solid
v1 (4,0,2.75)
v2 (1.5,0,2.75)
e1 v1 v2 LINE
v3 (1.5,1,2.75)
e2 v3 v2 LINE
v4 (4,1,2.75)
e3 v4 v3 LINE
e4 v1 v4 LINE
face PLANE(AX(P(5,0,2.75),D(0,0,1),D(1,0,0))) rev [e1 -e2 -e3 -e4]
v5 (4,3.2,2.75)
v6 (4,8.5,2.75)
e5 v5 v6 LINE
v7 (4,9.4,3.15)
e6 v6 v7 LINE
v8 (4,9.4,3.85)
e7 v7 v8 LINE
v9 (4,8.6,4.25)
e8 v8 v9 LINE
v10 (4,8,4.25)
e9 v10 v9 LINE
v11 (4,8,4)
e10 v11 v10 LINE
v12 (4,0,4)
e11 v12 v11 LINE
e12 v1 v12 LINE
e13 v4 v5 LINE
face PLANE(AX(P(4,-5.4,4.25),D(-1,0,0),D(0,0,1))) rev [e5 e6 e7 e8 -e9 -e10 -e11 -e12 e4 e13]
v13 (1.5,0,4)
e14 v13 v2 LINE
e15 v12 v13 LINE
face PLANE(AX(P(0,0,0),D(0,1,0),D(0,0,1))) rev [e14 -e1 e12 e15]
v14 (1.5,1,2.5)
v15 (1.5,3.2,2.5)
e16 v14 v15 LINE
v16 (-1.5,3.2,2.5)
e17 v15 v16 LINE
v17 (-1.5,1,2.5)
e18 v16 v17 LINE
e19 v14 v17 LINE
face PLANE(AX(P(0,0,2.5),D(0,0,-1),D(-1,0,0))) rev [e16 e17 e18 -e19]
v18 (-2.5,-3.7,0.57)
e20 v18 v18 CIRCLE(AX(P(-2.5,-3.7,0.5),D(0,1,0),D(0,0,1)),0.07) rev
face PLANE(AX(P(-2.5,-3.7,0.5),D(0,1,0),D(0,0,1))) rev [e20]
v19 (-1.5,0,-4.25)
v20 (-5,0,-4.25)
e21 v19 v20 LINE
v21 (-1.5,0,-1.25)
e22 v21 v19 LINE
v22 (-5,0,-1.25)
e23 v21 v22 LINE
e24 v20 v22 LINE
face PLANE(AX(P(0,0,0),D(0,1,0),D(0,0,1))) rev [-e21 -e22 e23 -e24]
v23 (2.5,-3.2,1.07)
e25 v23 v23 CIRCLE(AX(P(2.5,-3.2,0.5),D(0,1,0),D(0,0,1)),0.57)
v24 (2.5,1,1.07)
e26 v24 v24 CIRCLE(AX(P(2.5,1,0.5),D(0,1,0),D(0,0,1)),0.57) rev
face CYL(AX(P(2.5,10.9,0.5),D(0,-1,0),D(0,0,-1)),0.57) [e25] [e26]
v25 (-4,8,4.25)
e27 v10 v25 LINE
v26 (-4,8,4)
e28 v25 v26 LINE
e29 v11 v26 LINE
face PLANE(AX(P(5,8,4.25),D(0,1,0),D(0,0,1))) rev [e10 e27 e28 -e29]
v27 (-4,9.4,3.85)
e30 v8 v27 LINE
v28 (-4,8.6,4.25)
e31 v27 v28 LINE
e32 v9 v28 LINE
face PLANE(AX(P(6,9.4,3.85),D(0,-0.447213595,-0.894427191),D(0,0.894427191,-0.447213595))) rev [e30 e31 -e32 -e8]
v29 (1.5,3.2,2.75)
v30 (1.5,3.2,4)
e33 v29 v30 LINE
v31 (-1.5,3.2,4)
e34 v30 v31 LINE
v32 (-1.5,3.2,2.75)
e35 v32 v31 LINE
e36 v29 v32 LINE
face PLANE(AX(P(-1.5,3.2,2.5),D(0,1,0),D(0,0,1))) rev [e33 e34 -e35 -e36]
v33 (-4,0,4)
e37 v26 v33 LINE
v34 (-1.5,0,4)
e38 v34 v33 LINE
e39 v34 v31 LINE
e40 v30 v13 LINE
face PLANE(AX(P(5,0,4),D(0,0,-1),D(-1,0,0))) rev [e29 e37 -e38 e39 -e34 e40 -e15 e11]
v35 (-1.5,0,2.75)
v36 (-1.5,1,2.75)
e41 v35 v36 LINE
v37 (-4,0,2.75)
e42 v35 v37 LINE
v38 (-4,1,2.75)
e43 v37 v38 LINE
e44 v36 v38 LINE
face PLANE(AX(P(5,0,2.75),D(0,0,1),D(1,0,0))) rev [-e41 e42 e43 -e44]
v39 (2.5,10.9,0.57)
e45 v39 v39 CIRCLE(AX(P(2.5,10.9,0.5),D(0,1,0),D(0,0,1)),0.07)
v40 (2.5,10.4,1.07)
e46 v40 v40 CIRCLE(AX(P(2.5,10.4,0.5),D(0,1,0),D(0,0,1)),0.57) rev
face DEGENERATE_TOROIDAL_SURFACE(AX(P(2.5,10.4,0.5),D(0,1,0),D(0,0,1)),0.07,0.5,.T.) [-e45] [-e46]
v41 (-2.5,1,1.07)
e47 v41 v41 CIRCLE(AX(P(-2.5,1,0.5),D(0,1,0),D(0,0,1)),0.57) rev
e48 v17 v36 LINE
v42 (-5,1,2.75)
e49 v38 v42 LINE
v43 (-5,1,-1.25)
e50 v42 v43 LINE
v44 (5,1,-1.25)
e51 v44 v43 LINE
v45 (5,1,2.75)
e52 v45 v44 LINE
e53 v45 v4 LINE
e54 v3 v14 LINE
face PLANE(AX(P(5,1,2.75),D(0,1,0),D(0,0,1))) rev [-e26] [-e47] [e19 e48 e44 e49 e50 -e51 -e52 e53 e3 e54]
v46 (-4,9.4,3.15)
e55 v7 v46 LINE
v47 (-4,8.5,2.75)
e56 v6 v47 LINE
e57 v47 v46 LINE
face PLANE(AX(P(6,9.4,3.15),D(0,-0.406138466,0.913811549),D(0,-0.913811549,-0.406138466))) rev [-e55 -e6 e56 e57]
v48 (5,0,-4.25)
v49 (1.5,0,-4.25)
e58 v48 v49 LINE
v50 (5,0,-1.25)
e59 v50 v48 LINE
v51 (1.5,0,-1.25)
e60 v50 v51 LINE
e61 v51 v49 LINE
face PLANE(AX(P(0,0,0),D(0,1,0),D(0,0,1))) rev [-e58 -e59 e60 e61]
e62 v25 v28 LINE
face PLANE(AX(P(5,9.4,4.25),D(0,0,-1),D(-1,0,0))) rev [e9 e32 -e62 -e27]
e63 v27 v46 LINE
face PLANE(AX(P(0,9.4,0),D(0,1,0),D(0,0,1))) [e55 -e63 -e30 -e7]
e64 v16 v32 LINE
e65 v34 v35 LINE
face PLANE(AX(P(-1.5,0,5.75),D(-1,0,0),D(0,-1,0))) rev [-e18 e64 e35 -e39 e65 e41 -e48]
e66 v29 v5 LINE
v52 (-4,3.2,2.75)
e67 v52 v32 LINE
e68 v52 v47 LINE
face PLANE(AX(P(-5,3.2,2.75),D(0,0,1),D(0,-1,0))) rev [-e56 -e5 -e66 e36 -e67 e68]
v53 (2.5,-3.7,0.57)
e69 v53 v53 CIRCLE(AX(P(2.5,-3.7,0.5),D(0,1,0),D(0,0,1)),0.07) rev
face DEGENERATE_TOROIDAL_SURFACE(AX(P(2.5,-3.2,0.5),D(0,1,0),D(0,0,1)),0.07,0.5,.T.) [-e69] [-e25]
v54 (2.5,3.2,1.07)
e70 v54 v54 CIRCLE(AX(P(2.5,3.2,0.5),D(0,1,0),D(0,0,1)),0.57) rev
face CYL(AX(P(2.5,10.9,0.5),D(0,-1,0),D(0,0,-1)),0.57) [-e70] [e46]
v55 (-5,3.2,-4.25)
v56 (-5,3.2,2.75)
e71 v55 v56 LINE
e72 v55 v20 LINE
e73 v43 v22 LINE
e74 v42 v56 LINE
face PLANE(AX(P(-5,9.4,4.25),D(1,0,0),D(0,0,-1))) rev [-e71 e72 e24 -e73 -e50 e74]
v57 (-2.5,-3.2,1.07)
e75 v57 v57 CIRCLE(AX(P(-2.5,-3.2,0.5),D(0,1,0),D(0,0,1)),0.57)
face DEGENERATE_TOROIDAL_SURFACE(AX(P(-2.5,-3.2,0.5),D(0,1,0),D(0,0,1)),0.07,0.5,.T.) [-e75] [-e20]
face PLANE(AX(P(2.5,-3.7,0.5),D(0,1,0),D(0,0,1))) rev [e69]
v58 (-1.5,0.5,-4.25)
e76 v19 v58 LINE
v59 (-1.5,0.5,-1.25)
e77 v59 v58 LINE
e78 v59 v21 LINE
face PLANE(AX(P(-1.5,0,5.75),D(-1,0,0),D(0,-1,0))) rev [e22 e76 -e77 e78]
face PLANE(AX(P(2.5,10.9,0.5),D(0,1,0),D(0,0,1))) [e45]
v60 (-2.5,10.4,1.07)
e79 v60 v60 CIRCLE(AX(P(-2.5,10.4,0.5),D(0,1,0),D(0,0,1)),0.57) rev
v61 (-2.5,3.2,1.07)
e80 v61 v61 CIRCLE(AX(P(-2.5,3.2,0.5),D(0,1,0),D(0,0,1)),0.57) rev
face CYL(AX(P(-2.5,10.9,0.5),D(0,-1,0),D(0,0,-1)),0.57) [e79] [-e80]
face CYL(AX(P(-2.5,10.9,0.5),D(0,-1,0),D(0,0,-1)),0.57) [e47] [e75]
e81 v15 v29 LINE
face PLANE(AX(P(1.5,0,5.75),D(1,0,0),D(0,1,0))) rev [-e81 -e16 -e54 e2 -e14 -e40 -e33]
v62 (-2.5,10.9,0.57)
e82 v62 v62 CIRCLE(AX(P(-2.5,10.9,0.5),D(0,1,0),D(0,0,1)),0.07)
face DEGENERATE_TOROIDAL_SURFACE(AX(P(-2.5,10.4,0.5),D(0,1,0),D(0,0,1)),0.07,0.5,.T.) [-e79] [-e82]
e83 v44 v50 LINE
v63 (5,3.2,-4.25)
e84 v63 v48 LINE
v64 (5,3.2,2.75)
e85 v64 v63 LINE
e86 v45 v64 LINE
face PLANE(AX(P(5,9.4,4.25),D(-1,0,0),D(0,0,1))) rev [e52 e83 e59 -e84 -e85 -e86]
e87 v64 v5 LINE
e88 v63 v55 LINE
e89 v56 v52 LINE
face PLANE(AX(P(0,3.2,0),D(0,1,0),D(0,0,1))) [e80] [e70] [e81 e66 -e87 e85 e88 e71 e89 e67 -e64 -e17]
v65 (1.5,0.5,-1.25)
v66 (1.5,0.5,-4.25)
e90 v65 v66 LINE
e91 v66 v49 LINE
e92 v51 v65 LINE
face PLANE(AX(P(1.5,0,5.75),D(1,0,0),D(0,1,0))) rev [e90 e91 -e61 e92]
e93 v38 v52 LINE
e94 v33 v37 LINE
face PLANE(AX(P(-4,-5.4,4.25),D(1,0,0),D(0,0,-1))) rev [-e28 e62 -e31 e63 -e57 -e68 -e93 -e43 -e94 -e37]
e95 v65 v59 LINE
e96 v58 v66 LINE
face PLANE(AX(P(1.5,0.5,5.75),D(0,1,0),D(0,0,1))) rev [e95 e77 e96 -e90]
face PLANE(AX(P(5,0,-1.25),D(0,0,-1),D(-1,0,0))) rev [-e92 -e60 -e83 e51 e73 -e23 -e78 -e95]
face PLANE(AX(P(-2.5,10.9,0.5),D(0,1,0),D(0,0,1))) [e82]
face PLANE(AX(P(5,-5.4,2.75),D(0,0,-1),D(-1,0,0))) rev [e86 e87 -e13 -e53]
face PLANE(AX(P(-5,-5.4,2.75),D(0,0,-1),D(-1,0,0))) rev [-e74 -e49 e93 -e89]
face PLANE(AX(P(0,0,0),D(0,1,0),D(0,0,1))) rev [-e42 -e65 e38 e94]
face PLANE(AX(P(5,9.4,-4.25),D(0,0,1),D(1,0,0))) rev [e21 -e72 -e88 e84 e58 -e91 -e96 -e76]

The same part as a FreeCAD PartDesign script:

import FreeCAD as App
import Part
import Sketcher
from FreeCAD import Vector
Q = App.Units.Quantity


def edges_at(feature, points):
    """Names of the edges that pass closest to the given points."""
    edges = feature.Shape.Edges
    near = lambda p: min(range(len(edges)), key=lambda i: edges[i].distToShape(Part.Vertex(*p))[0])
    return sorted({f"Edge{near(p) + 1}" for p in points})

doc = App.newDocument("Part")
body = doc.addObject("PartDesign::Body", "Body")

# Sketch on XZ plane
sketch1 = body.newObject("Sketcher::SketchObject", "Sketch")
sketch1.AttachmentSupport = (doc.getObject("XZ_Plane"), [""])
sketch1.MapMode = "FlatFace"
sketch1.addGeometry([
    Part.LineSegment(Vector(-5, -4.25, 0), Vector(-5, 4.25, 0)),
    Part.LineSegment(Vector(-5, 4.25, 0), Vector(5, 4.25, 0)),
    Part.LineSegment(Vector(5, 4.25, 0), Vector(5, -4.25, 0)),
    Part.LineSegment(Vector(5, -4.25, 0), Vector(-5, -4.25, 0)),
], False)
sketch1.addConstraint([
    Sketcher.Constraint("Coincident", 0, 2, 1, 1),
    Sketcher.Constraint("Coincident", 1, 2, 2, 1),
    Sketcher.Constraint("Coincident", 2, 2, 3, 1),
    Sketcher.Constraint("Coincident", 3, 2, 0, 1),
    Sketcher.Constraint("Vertical", 0),
    Sketcher.Constraint("Horizontal", 1),
    Sketcher.Constraint("Vertical", 2),
    Sketcher.Constraint("Horizontal", 3),
    Sketcher.Constraint("Symmetric", 0, 2, 2, 2, -1, 1),
    Sketcher.Constraint("DistanceX", 1, 1, 1, 2, Q("10 mm")),
    Sketcher.Constraint("DistanceY", 0, 1, 0, 2, Q("8.5 mm")),
])
pad1 = body.newObject("PartDesign::Pad", "Pad")
pad1.Profile = sketch1
pad1.Length = 9.4
pad1.Reversed = True

# Sketch on XZ plane
sketch2 = body.newObject("Sketcher::SketchObject", "Sketch001")
sketch2.AttachmentSupport = (doc.getObject("XZ_Plane"), [""])
sketch2.MapMode = "FlatFace"
sketch2.AttachmentOffset = App.Placement(Vector(0, 0, -9.4), App.Rotation())
sketch2.addGeometry([
    Part.LineSegment(Vector(-5, -4.25, 0), Vector(-5, 2.75, 0)),
    Part.LineSegment(Vector(-5, 2.75, 0), Vector(5, 2.75, 0)),
    Part.LineSegment(Vector(5, 2.75, 0), Vector(5, -4.25, 0)),
    Part.LineSegment(Vector(5, -4.25, 0), Vector(-5, -4.25, 0)),
], False)
sketch2.addConstraint([
    Sketcher.Constraint("Coincident", 0, 2, 1, 1),
    Sketcher.Constraint("Coincident", 1, 2, 2, 1),
    Sketcher.Constraint("Coincident", 2, 2, 3, 1),
    Sketcher.Constraint("Coincident", 3, 2, 0, 1),
    Sketcher.Constraint("Vertical", 0),
    Sketcher.Constraint("Horizontal", 1),
    Sketcher.Constraint("Vertical", 2),
    Sketcher.Constraint("Horizontal", 3),
    Sketcher.Constraint("DistanceX", 1, 1, 1, 2, Q("10 mm")),
    Sketcher.Constraint("DistanceY", 0, 1, 0, 2, Q("7 mm")),
    Sketcher.Constraint("DistanceX", 0, 2, -1, 1, Q("5 mm")),
    Sketcher.Constraint("DistanceY", -1, 1, 0, 2, Q("2.75 mm")),
])
pocket1 = body.newObject("PartDesign::Pocket", "Pocket")
pocket1.Profile = sketch2
pocket1.Length = 6.2
pocket1.Reversed = True

# Sketch on YZ plane
sketch3 = body.newObject("Sketcher::SketchObject", "Sketch002")
sketch3.AttachmentSupport = (doc.getObject("YZ_Plane"), [""])
sketch3.MapMode = "FlatFace"
sketch3.AttachmentOffset = App.Placement(Vector(0, 0, -5), App.Rotation())
sketch3.addGeometry([
    Part.LineSegment(Vector(8, 4, 0), Vector(0, 4, 0)),
    Part.LineSegment(Vector(0, 4, 0), Vector(0, 4.25, 0)),
    Part.LineSegment(Vector(0, 4.25, 0), Vector(8, 4.25, 0)),
    Part.LineSegment(Vector(8, 4.25, 0), Vector(8, 4, 0)),
], False)
sketch3.addConstraint([
    Sketcher.Constraint("Coincident", 0, 2, 1, 1),
    Sketcher.Constraint("Coincident", 1, 2, 2, 1),
    Sketcher.Constraint("Coincident", 2, 2, 3, 1),
    Sketcher.Constraint("Coincident", 3, 2, 0, 1),
    Sketcher.Constraint("Horizontal", 0),
    Sketcher.Constraint("Vertical", 1),
    Sketcher.Constraint("Horizontal", 2),
    Sketcher.Constraint("Vertical", 3),
    Sketcher.Constraint("PointOnObject", 0, 2, -2),
    Sketcher.Constraint("DistanceX", 0, 2, 0, 1, Q("8 mm")),
    Sketcher.Constraint("DistanceY", -1, 1, 0, 2, Q("4 mm")),
    Sketcher.Constraint("DistanceY", 1, 1, 1, 2, Q("0.25 mm")),
])
pocket2 = body.newObject("PartDesign::Pocket", "Pocket001")
pocket2.Profile = sketch3
pocket2.Length = 10
pocket2.Reversed = True

# Sketch on XY plane
sketch4 = body.newObject("Sketcher::SketchObject", "Sketch003")
sketch4.AttachmentSupport = (doc.getObject("XY_Plane"), [""])
sketch4.MapMode = "FlatFace"
sketch4.AttachmentOffset = App.Placement(Vector(0, 0, -4.25), App.Rotation())
sketch4.addGeometry([
    Part.LineSegment(Vector(1.5, 0.5, 0), Vector(1.5, 0, 0)),
    Part.LineSegment(Vector(1.5, 0, 0), Vector(-1.5, 0, 0)),
    Part.LineSegment(Vector(-1.5, 0, 0), Vector(-1.5, 0.5, 0)),
    Part.LineSegment(Vector(-1.5, 0.5, 0), Vector(1.5, 0.5, 0)),
], False)
sketch4.addConstraint([
    Sketcher.Constraint("Coincident", 0, 2, 1, 1),
    Sketcher.Constraint("Coincident", 1, 2, 2, 1),
    Sketcher.Constraint("Coincident", 2, 2, 3, 1),
    Sketcher.Constraint("Coincident", 3, 2, 0, 1),
    Sketcher.Constraint("Vertical", 0),
    Sketcher.Constraint("Horizontal", 1),
    Sketcher.Constraint("Vertical", 2),
    Sketcher.Constraint("Horizontal", 3),
    Sketcher.Constraint("Symmetric", 0, 2, 1, 2, -1, 1),
    Sketcher.Constraint("DistanceX", 1, 2, 1, 1, Q("3 mm")),
    Sketcher.Constraint("DistanceY", 0, 2, 0, 1, Q("0.5 mm")),
])
pocket3 = body.newObject("PartDesign::Pocket", "Pocket002")
pocket3.Profile = sketch4
pocket3.Length = 10
pocket3.Reversed = True

# Sketch on YZ plane
sketch5 = body.newObject("Sketcher::SketchObject", "Sketch004")
sketch5.AttachmentSupport = (doc.getObject("YZ_Plane"), [""])
sketch5.MapMode = "FlatFace"
sketch5.AttachmentOffset = App.Placement(Vector(0, 0, -5), App.Rotation())
sketch5.addGeometry([
    Part.LineSegment(Vector(1, -1.25, 0), Vector(0, -1.25, 0)),
    Part.LineSegment(Vector(0, -1.25, 0), Vector(0, 2.75, 0)),
    Part.LineSegment(Vector(0, 2.75, 0), Vector(1, 2.75, 0)),
    Part.LineSegment(Vector(1, 2.75, 0), Vector(1, -1.25, 0)),
], False)
sketch5.addConstraint([
    Sketcher.Constraint("Coincident", 0, 2, 1, 1),
    Sketcher.Constraint("Coincident", 1, 2, 2, 1),
    Sketcher.Constraint("Coincident", 2, 2, 3, 1),
    Sketcher.Constraint("Coincident", 3, 2, 0, 1),
    Sketcher.Constraint("Horizontal", 0),
    Sketcher.Constraint("Vertical", 1),
    Sketcher.Constraint("Horizontal", 2),
    Sketcher.Constraint("Vertical", 3),
    Sketcher.Constraint("PointOnObject", 0, 2, -2),
    Sketcher.Constraint("DistanceX", 0, 2, 0, 1, Q("1 mm")),
    Sketcher.Constraint("DistanceY", 1, 1, 1, 2, Q("4 mm")),
    Sketcher.Constraint("DistanceY", 0, 2, -1, 1, Q("1.25 mm")),
])
pocket4 = body.newObject("PartDesign::Pocket", "Pocket003")
pocket4.Profile = sketch5
pocket4.Length = 10
pocket4.Reversed = True

# Sketch on XZ plane
sketch6 = body.newObject("Sketcher::SketchObject", "Sketch005")
sketch6.AttachmentSupport = (doc.getObject("XZ_Plane"), [""])
sketch6.MapMode = "FlatFace"
sketch6.AttachmentOffset = App.Placement(Vector(0, 0, -3.6), App.Rotation())
sketch6.addGeometry([
    Part.Circle(Vector(-2.5, 0.5, 0), Vector(0, 0, 1), 0.57),
    Part.Circle(Vector(2.5, 0.5, 0), Vector(0, 0, 1), 0.57),
], False)
sketch6.addConstraint([
    Sketcher.Constraint("Equal", 0, 1),
    Sketcher.Constraint("Symmetric", 0, 3, 1, 3, -2),
    Sketcher.Constraint("Diameter", 0, Q("1.14 mm")),
    Sketcher.Constraint("DistanceX", 0, 3, 1, 3, Q("5 mm")),
    Sketcher.Constraint("DistanceY", -1, 1, 0, 3, Q("0.5 mm")),
])
pad2 = body.newObject("PartDesign::Pad", "Pad001")
pad2.Profile = sketch6
pad2.Length = 14.6
pad2.Midplane = True
doc.recompute()

fillet = body.newObject("PartDesign::Fillet", "Fillet")
fillet.Base = (pad2, edges_at(pad2, [
    (2.5, -3.7, -0.07),
    (2.5, 10.9, -0.07),
    (-2.5, -3.7, -0.07),
    (-2.5, 10.9, -0.07),
]))
fillet.Radius = 0.5

# Sketch on XZ plane
sketch7 = body.newObject("Sketcher::SketchObject", "Sketch006")
sketch7.AttachmentSupport = (doc.getObject("XZ_Plane"), [""])
sketch7.MapMode = "FlatFace"
sketch7.AttachmentOffset = App.Placement(Vector(0, 0, -9.4), App.Rotation())
sketch7.addGeometry([
    Part.LineSegment(Vector(-5, 2.75, 0), Vector(-5, 4.25, 0)),  # 0
    Part.LineSegment(Vector(-5, 4.25, 0), Vector(-4, 4.25, 0)),  # 1
    Part.LineSegment(Vector(-4, 4.25, 0), Vector(-4, 2.75, 0)),  # 2
    Part.LineSegment(Vector(-4, 2.75, 0), Vector(-5, 2.75, 0)),  # 3
    Part.LineSegment(Vector(4, 2.75, 0), Vector(4, 4.25, 0)),  # 4
    Part.LineSegment(Vector(4, 4.25, 0), Vector(5, 4.25, 0)),  # 5
    Part.LineSegment(Vector(5, 4.25, 0), Vector(5, 2.75, 0)),  # 6
    Part.LineSegment(Vector(5, 2.75, 0), Vector(4, 2.75, 0)),  # 7
], False)
sketch7.addConstraint([
    Sketcher.Constraint("Coincident", 0, 2, 1, 1),
    Sketcher.Constraint("Coincident", 1, 2, 2, 1),
    Sketcher.Constraint("Coincident", 2, 2, 3, 1),
    Sketcher.Constraint("Coincident", 3, 2, 0, 1),
    Sketcher.Constraint("Coincident", 4, 2, 5, 1),
    Sketcher.Constraint("Coincident", 5, 2, 6, 1),
    Sketcher.Constraint("Coincident", 6, 2, 7, 1),
    Sketcher.Constraint("Coincident", 7, 2, 4, 1),
    Sketcher.Constraint("Vertical", 0),
    Sketcher.Constraint("Horizontal", 1),
    Sketcher.Constraint("Vertical", 2),
    Sketcher.Constraint("Horizontal", 3),
    Sketcher.Constraint("Vertical", 4),
    Sketcher.Constraint("Horizontal", 5),
    Sketcher.Constraint("Vertical", 6),
    Sketcher.Constraint("Horizontal", 7),
    Sketcher.Constraint("Symmetric", 1, 2, 4, 2, -2),
    Sketcher.Constraint("Symmetric", 3, 2, 6, 2, -2),
    Sketcher.Constraint("DistanceX", 1, 1, 1, 2, Q("1 mm")),
    Sketcher.Constraint("DistanceY", 0, 1, 0, 2, Q("1.5 mm")),
    Sketcher.Constraint("DistanceX", 0, 2, -1, 1, Q("5 mm")),
    Sketcher.Constraint("DistanceY", -1, 1, 0, 2, Q("4.25 mm")),
])
pocket5 = body.newObject("PartDesign::Pocket", "Pocket004")
pocket5.Profile = sketch7
pocket5.Length = 14.8
pocket5.Reversed = True

# Sketch on XY plane
sketch8 = body.newObject("Sketcher::SketchObject", "Sketch007")
sketch8.AttachmentSupport = (doc.getObject("XY_Plane"), [""])
sketch8.MapMode = "FlatFace"
sketch8.AttachmentOffset = App.Placement(Vector(0, 0, 4), App.Rotation())
sketch8.addGeometry([
    Part.LineSegment(Vector(-1.5, 3.2, 0), Vector(-1.5, 0, 0)),
    Part.LineSegment(Vector(-1.5, 0, 0), Vector(1.5, 0, 0)),
    Part.LineSegment(Vector(1.5, 0, 0), Vector(1.5, 3.2, 0)),
    Part.LineSegment(Vector(1.5, 3.2, 0), Vector(-1.5, 3.2, 0)),
], False)
sketch8.addConstraint([
    Sketcher.Constraint("Coincident", 0, 2, 1, 1),
    Sketcher.Constraint("Coincident", 1, 2, 2, 1),
    Sketcher.Constraint("Coincident", 2, 2, 3, 1),
    Sketcher.Constraint("Coincident", 3, 2, 0, 1),
    Sketcher.Constraint("Vertical", 0),
    Sketcher.Constraint("Horizontal", 1),
    Sketcher.Constraint("Vertical", 2),
    Sketcher.Constraint("Horizontal", 3),
    Sketcher.Constraint("Symmetric", 0, 2, 1, 2, -1, 1),
    Sketcher.Constraint("DistanceX", 1, 1, 1, 2, Q("3 mm")),
    Sketcher.Constraint("DistanceY", 0, 2, 0, 1, Q("3.2 mm")),
])
pocket6 = body.newObject("PartDesign::Pocket", "Pocket005")
pocket6.Profile = sketch8
pocket6.Length = 1.5

# Sketch on YZ plane
sketch9 = body.newObject("Sketcher::SketchObject", "Sketch008")
sketch9.AttachmentSupport = (doc.getObject("YZ_Plane"), [""])
sketch9.MapMode = "FlatFace"
sketch9.AttachmentOffset = App.Placement(Vector(0, 0, -4), App.Rotation())
sketch9.addGeometry([
    Part.LineSegment(Vector(8.6, 4.25, 0), Vector(9.4, 4.25, 0)),  # 0
    Part.LineSegment(Vector(9.4, 4.25, 0), Vector(9.4, 3.85, 0)),  # 1
    Part.LineSegment(Vector(9.4, 3.85, 0), Vector(8.6, 4.25, 0)),  # 2
    Part.LineSegment(Vector(9.4, 2.75, 0), Vector(8.5, 2.75, 0)),  # 3
    Part.LineSegment(Vector(8.5, 2.75, 0), Vector(9.4, 3.15, 0)),  # 4
    Part.LineSegment(Vector(9.4, 3.15, 0), Vector(9.4, 2.75, 0)),  # 5
], False)
sketch9.addConstraint([
    Sketcher.Constraint("Coincident", 0, 2, 1, 1),
    Sketcher.Constraint("Coincident", 1, 2, 2, 1),
    Sketcher.Constraint("Coincident", 2, 2, 0, 1),
    Sketcher.Constraint("Coincident", 3, 2, 4, 1),
    Sketcher.Constraint("Coincident", 4, 2, 5, 1),
    Sketcher.Constraint("Coincident", 5, 2, 3, 1),
    Sketcher.Constraint("Horizontal", 0),
    Sketcher.Constraint("Vertical", 1),
    Sketcher.Constraint("Horizontal", 3),
    Sketcher.Constraint("Vertical", 5),
    Sketcher.Constraint("Vertical", 1, 2, 4, 2),
    Sketcher.Constraint("Equal", 1, 5),
    Sketcher.Constraint("DistanceX", 0, 1, 0, 2, Q("0.8 mm")),
    Sketcher.Constraint("DistanceX", 3, 2, 3, 1, Q("0.9 mm")),
    Sketcher.Constraint("DistanceY", 1, 2, 1, 1, Q("0.4 mm")),
    Sketcher.Constraint("DistanceX", -1, 1, 0, 2, Q("9.4 mm")),
    Sketcher.Constraint("DistanceY", 3, 2, 1, 2, Q("1.1 mm")),
    Sketcher.Constraint("DistanceY", -1, 1, 0, 2, Q("4.25 mm")),
])
pocket7 = body.newObject("PartDesign::Pocket", "Pocket006")
pocket7.Profile = sketch9
pocket7.Length = 10
pocket7.Reversed = True

doc.recompute()
